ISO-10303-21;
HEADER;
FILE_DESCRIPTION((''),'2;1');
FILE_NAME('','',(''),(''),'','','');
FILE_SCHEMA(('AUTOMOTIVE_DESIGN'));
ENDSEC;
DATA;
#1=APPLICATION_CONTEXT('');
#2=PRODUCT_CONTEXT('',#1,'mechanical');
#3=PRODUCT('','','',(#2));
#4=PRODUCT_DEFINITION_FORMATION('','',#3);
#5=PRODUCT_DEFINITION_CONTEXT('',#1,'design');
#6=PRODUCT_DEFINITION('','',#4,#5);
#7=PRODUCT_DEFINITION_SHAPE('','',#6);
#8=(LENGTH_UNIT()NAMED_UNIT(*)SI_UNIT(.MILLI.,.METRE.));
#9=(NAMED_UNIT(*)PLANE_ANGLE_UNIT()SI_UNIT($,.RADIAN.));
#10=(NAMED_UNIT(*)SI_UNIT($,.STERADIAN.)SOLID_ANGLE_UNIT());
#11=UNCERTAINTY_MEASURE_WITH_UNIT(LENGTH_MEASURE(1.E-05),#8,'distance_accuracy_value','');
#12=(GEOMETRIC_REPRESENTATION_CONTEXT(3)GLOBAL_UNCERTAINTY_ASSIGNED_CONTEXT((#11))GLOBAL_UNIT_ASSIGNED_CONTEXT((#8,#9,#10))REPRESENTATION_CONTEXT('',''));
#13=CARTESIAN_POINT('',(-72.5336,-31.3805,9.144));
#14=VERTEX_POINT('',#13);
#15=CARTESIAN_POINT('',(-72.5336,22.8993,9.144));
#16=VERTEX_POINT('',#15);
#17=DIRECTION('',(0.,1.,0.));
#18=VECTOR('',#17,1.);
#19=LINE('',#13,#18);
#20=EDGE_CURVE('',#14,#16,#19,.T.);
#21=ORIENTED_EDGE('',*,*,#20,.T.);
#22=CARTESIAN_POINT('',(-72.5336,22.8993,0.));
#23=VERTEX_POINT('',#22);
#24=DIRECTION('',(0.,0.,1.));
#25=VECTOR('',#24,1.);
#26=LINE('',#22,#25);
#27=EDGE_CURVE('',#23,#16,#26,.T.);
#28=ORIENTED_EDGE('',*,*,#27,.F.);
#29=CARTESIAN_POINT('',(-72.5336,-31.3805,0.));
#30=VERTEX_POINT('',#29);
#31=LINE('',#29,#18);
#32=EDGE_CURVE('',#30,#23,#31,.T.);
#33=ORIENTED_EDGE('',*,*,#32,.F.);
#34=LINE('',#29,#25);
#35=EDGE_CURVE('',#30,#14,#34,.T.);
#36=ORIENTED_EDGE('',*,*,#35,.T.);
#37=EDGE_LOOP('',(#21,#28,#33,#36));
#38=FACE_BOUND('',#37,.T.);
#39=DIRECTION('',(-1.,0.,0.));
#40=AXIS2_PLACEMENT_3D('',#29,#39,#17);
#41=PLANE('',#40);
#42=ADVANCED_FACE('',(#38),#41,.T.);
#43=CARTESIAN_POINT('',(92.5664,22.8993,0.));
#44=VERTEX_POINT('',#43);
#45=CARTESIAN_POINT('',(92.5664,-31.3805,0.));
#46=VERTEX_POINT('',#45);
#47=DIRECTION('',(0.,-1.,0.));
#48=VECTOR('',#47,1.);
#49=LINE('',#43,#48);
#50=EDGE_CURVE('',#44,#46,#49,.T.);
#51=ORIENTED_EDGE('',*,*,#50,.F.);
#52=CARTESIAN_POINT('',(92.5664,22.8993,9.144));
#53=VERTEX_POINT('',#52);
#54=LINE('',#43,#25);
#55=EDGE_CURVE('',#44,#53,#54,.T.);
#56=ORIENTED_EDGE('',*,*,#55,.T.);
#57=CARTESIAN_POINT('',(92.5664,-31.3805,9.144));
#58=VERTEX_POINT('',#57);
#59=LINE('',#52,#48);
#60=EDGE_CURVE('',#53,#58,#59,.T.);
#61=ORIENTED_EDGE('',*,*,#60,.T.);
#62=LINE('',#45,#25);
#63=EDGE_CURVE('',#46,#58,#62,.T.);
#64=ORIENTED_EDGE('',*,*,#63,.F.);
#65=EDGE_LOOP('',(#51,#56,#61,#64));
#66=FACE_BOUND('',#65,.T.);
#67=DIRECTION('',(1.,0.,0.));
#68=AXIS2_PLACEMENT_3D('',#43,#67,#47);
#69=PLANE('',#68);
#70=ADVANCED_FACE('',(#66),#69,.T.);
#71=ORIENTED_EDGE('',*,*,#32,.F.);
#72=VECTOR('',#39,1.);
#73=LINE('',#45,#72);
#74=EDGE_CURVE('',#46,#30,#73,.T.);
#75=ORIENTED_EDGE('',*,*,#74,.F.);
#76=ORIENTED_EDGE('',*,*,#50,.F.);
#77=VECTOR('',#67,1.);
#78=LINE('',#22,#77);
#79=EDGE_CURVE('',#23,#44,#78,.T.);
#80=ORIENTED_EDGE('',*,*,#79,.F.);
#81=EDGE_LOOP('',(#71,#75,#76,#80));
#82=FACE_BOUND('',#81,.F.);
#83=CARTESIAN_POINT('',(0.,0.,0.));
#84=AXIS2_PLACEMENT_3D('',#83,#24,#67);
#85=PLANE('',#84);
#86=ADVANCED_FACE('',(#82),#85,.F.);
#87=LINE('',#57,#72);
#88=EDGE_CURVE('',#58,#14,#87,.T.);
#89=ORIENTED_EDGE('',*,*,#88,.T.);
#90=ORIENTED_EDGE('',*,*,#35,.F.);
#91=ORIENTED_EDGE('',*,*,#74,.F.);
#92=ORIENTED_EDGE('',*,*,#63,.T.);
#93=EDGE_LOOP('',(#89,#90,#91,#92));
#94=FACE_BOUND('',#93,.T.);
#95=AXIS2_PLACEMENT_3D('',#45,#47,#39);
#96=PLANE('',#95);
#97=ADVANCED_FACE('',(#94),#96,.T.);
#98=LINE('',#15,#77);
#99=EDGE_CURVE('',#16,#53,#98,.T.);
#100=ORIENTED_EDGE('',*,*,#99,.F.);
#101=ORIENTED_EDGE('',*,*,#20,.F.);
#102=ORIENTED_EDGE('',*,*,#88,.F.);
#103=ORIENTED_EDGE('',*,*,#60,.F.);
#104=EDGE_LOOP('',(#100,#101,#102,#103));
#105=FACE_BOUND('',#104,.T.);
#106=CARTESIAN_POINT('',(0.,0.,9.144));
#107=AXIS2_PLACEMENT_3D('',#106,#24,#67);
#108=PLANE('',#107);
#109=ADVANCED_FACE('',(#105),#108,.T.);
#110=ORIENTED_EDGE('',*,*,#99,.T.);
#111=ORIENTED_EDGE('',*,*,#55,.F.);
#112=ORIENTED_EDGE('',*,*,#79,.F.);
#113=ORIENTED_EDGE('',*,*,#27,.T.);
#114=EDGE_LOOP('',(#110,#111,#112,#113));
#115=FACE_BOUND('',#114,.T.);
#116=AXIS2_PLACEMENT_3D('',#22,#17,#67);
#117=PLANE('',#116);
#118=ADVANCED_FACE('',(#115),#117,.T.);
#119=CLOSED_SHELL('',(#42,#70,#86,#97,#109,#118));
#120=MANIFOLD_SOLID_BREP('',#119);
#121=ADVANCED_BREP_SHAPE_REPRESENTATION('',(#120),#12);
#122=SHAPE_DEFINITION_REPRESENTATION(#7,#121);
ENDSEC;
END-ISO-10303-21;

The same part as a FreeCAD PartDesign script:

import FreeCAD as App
import Part
import Sketcher
Q = App.Units.Quantity


def add_polygon(sketch, points):
    """Adds a closed chain of lines whose ends are joined by coincident constraints."""
    first, n = sketch.GeometryCount, len(points)
    for a, b in zip(points, points[1:] + points[:1]):
        sketch.addGeometry(Part.LineSegment(App.Vector(*a, 0), App.Vector(*b, 0)), False)
    for i in range(n):
        sketch.addConstraint(Sketcher.Constraint("Coincident", first + i, 2, first + (i + 1) % n, 1))

doc = App.newDocument("Part")
body = doc.addObject("PartDesign::Body", "Body")

# Sketch on XY plane
sketch1 = body.newObject("Sketcher::SketchObject", "Sketch")
sketch1.AttachmentSupport = (doc.getObject("XY_Plane"), [""])
sketch1.MapMode = "FlatFace"
add_polygon(sketch1, [(93, 23), (-73, 23), (-73, -31), (93, -31)])  # lines 0-3
sketch1.addConstraint(Sketcher.Constraint("Horizontal", 0))
sketch1.addConstraint(Sketcher.Constraint("Vertical", 1))
sketch1.addConstraint(Sketcher.Constraint("Horizontal", 2))
sketch1.addConstraint(Sketcher.Constraint("Vertical", 3))
sketch1.addConstraint(Sketcher.Constraint("DistanceX", 0, 2, 0, 1, Q("6.5 in")))
sketch1.addConstraint(Sketcher.Constraint("DistanceY", 1, 2, 1, 1, Q("2.137 in")))
sketch1.addConstraint(Sketcher.Constraint("DistanceX", 0, 2, -1, 1, 72.5336))
sketch1.addConstraint(Sketcher.Constraint("DistanceY", -1, 1, 0, 2, 22.8993))
pad1 = body.newObject("PartDesign::Pad", "Pad")
pad1.Profile = sketch1
pad1.Length = Q("0.36 in")

doc.recompute()
